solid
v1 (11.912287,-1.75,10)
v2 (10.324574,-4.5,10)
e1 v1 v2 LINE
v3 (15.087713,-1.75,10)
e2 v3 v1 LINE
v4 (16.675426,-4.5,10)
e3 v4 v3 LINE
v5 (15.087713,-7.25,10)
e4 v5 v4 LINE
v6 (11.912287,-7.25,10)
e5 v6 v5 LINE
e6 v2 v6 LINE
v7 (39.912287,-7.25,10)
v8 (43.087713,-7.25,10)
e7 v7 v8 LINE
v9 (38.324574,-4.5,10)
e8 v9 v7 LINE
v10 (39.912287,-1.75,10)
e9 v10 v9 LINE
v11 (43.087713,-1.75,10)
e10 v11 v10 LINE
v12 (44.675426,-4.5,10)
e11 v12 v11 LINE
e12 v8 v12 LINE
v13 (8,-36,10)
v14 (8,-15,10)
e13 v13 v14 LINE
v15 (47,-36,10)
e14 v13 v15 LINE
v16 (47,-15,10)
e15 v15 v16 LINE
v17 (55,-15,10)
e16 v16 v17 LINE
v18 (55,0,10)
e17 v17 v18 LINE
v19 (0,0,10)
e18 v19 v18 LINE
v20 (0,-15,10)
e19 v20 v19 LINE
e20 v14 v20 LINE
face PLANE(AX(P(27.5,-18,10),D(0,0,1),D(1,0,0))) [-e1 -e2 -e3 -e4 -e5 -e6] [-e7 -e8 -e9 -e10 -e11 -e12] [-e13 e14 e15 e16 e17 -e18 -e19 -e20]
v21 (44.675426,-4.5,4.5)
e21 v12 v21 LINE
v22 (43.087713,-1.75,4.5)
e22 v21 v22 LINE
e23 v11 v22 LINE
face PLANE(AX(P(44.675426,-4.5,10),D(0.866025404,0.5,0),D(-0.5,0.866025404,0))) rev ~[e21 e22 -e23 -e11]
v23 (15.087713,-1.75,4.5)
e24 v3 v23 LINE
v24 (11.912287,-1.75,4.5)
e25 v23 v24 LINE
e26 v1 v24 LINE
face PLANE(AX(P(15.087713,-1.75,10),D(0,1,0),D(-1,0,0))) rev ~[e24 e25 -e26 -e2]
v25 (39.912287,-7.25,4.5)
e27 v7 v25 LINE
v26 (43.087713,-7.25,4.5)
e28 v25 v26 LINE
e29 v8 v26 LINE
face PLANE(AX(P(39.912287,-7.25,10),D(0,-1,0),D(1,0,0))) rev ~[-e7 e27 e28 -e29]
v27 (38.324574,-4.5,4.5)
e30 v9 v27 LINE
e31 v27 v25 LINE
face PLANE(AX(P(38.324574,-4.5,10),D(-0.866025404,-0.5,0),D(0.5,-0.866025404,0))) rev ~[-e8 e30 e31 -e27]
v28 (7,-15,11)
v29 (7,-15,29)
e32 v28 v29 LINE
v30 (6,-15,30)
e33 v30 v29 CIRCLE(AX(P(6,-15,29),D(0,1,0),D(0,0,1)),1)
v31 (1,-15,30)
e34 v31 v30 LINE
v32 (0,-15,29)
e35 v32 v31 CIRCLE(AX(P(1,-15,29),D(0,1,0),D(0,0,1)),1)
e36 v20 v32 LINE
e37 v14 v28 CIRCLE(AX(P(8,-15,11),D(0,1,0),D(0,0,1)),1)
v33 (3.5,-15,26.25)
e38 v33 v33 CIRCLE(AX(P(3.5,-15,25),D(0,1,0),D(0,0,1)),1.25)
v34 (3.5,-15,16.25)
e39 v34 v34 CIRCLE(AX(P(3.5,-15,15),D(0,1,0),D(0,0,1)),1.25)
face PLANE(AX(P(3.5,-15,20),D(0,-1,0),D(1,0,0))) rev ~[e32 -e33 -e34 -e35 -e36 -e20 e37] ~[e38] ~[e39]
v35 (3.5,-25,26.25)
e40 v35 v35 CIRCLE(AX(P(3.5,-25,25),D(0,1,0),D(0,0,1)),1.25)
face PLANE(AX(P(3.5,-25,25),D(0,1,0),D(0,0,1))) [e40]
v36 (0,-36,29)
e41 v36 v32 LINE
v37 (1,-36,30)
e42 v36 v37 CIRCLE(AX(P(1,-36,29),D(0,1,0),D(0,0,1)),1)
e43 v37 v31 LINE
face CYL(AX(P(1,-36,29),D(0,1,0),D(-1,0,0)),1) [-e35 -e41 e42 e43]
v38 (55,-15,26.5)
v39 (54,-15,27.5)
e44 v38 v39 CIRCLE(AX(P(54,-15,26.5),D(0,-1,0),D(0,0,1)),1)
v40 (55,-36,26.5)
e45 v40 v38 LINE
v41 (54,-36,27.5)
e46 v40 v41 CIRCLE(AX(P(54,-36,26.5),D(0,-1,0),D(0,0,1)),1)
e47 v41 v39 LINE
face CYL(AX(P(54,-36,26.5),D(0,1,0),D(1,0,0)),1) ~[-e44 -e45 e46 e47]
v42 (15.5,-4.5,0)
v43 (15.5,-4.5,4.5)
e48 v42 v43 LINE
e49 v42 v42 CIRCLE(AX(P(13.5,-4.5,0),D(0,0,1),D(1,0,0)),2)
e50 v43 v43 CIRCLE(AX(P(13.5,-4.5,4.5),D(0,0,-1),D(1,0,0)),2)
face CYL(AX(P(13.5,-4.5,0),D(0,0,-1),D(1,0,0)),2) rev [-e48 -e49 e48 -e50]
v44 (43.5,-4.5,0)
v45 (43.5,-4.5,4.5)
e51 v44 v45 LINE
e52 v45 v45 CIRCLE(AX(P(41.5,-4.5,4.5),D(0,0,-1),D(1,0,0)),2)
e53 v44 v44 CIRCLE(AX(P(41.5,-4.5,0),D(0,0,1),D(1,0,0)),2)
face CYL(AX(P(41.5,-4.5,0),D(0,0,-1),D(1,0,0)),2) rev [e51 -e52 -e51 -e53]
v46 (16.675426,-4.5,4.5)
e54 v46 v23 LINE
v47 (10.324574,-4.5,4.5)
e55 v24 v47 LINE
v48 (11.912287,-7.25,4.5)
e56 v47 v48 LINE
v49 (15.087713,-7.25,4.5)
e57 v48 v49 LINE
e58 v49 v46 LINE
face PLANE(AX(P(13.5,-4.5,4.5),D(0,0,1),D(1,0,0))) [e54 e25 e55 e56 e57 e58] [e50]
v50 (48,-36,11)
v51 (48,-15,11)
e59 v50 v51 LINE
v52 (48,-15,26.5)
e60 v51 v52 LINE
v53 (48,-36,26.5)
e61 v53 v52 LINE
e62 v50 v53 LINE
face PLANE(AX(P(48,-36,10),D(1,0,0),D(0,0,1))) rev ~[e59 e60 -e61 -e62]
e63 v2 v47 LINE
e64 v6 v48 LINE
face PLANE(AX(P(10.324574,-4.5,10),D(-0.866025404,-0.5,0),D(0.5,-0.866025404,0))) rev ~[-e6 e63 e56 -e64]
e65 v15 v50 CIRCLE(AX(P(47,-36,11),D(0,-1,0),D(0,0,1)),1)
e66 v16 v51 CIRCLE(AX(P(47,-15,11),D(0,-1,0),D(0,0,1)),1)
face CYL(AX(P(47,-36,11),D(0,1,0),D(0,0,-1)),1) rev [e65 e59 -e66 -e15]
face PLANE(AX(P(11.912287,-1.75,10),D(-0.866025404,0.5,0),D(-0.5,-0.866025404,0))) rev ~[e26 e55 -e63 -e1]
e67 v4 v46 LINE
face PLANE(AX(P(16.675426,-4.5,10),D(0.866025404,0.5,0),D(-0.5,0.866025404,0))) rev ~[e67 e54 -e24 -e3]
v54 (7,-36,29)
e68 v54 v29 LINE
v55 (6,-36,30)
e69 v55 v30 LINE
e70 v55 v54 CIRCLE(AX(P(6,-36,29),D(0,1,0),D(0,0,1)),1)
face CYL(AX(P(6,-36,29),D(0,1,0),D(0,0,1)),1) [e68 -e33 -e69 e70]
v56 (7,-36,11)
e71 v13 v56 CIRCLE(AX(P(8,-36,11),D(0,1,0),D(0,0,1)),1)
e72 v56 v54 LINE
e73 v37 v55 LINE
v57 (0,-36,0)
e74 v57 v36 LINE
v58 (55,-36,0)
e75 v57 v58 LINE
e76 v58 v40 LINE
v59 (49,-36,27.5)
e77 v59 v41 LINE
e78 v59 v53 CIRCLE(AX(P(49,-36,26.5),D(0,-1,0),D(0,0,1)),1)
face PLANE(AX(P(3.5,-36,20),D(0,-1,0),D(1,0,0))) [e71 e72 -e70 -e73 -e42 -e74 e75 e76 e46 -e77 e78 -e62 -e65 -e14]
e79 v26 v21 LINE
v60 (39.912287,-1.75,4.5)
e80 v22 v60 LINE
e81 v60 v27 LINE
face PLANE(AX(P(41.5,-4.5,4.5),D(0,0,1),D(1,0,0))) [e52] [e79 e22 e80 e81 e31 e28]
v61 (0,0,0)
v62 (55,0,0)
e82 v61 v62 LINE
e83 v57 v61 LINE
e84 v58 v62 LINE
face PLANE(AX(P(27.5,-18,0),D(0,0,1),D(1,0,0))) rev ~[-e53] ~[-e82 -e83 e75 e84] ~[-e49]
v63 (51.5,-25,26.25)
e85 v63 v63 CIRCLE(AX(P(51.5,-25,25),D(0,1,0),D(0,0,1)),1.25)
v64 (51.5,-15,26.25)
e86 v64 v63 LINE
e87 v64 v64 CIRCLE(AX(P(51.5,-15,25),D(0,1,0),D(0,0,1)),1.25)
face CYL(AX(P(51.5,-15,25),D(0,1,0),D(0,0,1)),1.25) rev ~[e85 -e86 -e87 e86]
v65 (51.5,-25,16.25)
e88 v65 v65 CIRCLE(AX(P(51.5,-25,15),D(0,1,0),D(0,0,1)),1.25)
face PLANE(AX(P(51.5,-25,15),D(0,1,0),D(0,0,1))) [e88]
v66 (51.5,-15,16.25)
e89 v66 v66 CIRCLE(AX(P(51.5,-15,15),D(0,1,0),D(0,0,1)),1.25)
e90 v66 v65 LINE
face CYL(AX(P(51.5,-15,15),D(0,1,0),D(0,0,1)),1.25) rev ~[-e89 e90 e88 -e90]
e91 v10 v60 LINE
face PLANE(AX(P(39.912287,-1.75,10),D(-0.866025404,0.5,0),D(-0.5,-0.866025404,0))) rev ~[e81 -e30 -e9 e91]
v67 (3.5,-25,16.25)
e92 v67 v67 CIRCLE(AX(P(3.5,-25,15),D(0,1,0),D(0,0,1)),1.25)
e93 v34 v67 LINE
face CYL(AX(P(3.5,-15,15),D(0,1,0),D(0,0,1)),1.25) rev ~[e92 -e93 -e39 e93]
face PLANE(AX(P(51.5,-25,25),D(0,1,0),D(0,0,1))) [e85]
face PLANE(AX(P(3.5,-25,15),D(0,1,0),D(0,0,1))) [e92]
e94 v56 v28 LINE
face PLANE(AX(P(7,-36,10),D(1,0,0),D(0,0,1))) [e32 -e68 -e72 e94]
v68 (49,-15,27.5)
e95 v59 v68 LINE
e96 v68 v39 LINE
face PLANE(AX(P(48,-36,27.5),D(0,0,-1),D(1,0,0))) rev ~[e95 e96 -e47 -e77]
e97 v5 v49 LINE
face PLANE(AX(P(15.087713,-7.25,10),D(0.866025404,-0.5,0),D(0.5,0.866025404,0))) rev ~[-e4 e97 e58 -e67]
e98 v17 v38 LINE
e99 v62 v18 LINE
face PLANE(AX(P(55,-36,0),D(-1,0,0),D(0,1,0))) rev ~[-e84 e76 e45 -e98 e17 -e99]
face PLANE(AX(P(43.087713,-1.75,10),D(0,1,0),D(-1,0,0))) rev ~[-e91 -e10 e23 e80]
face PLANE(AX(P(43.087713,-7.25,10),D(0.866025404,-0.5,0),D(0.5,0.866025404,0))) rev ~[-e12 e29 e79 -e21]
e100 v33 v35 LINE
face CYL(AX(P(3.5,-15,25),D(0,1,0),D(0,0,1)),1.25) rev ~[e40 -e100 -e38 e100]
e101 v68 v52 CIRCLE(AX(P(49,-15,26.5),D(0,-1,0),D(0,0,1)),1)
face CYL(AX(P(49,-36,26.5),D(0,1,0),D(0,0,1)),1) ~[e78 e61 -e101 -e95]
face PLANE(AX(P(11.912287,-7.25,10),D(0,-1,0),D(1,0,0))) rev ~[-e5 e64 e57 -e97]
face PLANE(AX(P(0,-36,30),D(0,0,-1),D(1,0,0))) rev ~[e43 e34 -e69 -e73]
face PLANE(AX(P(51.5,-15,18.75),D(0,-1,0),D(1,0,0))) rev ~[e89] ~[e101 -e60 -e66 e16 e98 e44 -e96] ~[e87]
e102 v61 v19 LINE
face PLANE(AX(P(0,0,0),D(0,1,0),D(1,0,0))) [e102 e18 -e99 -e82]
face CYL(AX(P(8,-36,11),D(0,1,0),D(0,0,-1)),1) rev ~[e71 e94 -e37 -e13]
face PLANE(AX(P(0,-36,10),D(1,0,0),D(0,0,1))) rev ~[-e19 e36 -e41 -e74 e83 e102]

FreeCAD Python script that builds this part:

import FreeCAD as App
import Part
import Sketcher

V = App.Vector
Q = App.Units.Quantity


def edges_at(feature, points):
    """Names of the edges that pass closest to the given points."""
    edges = feature.Shape.Edges
    near = lambda p: min(range(len(edges)), key=lambda i: edges[i].distToShape(Part.Vertex(*p))[0])
    return sorted({f"Edge{near(p) + 1}" for p in points})


def add_polygon(sketch, points):
    """Adds a closed chain of lines whose ends are joined by coincident constraints."""
    first, n = sketch.GeometryCount, len(points)
    for a, b in zip(points, points[1:] + points[:1]):
        sketch.addGeometry(Part.LineSegment(App.Vector(*a, 0), App.Vector(*b, 0)), False)
    for i in range(n):
        sketch.addConstraint(Sketcher.Constraint("Coincident", first + i, 2, first + (i + 1) % n, 1))

doc = App.newDocument("Part")
body = doc.addObject("PartDesign::Body", "Body")

# Sketch on XY plane
sketch1 = body.newObject("Sketcher::SketchObject", "Sketch")
sketch1.AttachmentSupport = (doc.getObject("XY_Plane"), [""])
sketch1.MapMode = "FlatFace"
add_polygon(sketch1, [(0, 0), (0, -36), (55, -36), (55, 0)])  # lines 0-3
sketch1.addGeometry(Part.Circle(V(13.5, -4.5, 0), V(0, 0, 1), 2), False)  # 4
sketch1.addGeometry(Part.Circle(V(41.5, -4.5, 0), V(0, 0, 1), 2), False)  # 5
sketch1.addConstraint([
    Sketcher.Constraint("Vertical", 0),
    Sketcher.Constraint("Horizontal", 1),
    Sketcher.Constraint("Vertical", 2),
    Sketcher.Constraint("Horizontal", 3),
    Sketcher.Constraint("Coincident", 3, 2, -1, 1),
    Sketcher.Constraint("Equal", 4, 5),
    Sketcher.Constraint("Horizontal", 4, 3, 5, 3),
    Sketcher.Constraint("Diameter", 4, Q("4 mm")),
    Sketcher.Constraint("DistanceX", 1, 1, 1, 2, Q("55 mm")),
    Sketcher.Constraint("DistanceY", 0, 2, 0, 1, Q("36 mm")),
    Sketcher.Constraint("DistanceX", 4, 3, 5, 3, Q("28 mm")),
    Sketcher.Constraint("DistanceX", -1, 1, 4, 3, Q("13.5 mm")),
    Sketcher.Constraint("DistanceY", 4, 3, -1, 1, Q("4.5 mm")),
])
pad1 = body.newObject("PartDesign::Pad", "Pad")
pad1.Profile = sketch1
pad1.Length = 10

# Sketch on XZ plane
sketch2 = body.newObject("Sketcher::SketchObject", "Sketch001")
sketch2.AttachmentSupport = (doc.getObject("XZ_Plane"), [""])
sketch2.MapMode = "FlatFace"
sketch2.AttachmentOffset = App.Placement(V(0, 0, 36), App.Rotation())
add_polygon(sketch2, [(0, 30), (0, 10), (7, 10), (7, 30)])  # lines 0-3
add_polygon(sketch2, [(48, 28), (48, 10), (55, 10), (55, 28)])  # lines 4-7
sketch2.addConstraint([
    Sketcher.Constraint("Vertical", 0),
    Sketcher.Constraint("Horizontal", 1),
    Sketcher.Constraint("Vertical", 2),
    Sketcher.Constraint("Horizontal", 3),
    Sketcher.Constraint("Vertical", 4),
    Sketcher.Constraint("Horizontal", 5),
    Sketcher.Constraint("Vertical", 6),
    Sketcher.Constraint("Horizontal", 7),
    Sketcher.Constraint("PointOnObject", 0, 2, -2),
    Sketcher.Constraint("Horizontal", 1, 2, 4, 2),
    Sketcher.Constraint("Equal", 3, 5),
    Sketcher.Constraint("DistanceX", 1, 1, 1, 2, Q("7 mm")),
    Sketcher.Constraint("DistanceY", 0, 2, 0, 1, Q("20 mm")),
    Sketcher.Constraint("DistanceY", 4, 2, 4, 1, Q("17.5 mm")),
    Sketcher.Constraint("DistanceY", -1, 1, 0, 2, Q("10 mm")),
    Sketcher.Constraint("DistanceX", -1, 1, 4, 2, Q("48 mm")),
])
pad2 = body.newObject("PartDesign::Pad", "Pad001")
pad2.Profile = sketch2
pad2.Length = 21
pad2.Reversed = True

# Sketch on XZ plane
sketch3 = body.newObject("Sketcher::SketchObject", "Sketch002")
sketch3.AttachmentSupport = (doc.getObject("XZ_Plane"), [""])
sketch3.MapMode = "FlatFace"
sketch3.AttachmentOffset = App.Placement(V(0, 0, 15), App.Rotation())
sketch3.addGeometry([
    Part.Circle(V(3.5, 15, 0), V(0, 0, 1), 1.2),
    Part.Circle(V(51.5, 15, 0), V(0, 0, 1), 1.2),
    Part.Circle(V(51.5, 25, 0), V(0, 0, 1), 1.2),
    Part.Circle(V(3.5, 25, 0), V(0, 0, 1), 1.2),
], False)
sketch3.addConstraint([
    Sketcher.Constraint("Equal", 0, 1),
    Sketcher.Constraint("Equal", 1, 2),
    Sketcher.Constraint("Equal", 2, 3),
    Sketcher.Constraint("Horizontal", 0, 3, 1, 3),
    Sketcher.Constraint("Horizontal", 2, 3, 3, 3),
    Sketcher.Constraint("Vertical", 1, 3, 2, 3),
    Sketcher.Constraint("Vertical", 0, 3, 3, 3),
    Sketcher.Constraint("Diameter", 0, Q("2.5 mm")),
    Sketcher.Constraint("DistanceY", -1, 1, 0, 3, Q("15 mm")),
    Sketcher.Constraint("DistanceY", -1, 1, 2, 3, Q("25 mm")),
    Sketcher.Constraint("DistanceX", 0, 3, 1, 3, Q("48 mm")),
    Sketcher.Constraint("DistanceX", -1, 1, 0, 3, Q("3.5 mm")),
])
pocket1 = body.newObject("PartDesign::Pocket", "Pocket")
pocket1.Profile = sketch3
pocket1.Length = 10
pocket1.Reversed = True

# Sketch on XY plane
sketch4 = body.newObject("Sketcher::SketchObject", "Sketch003")
sketch4.AttachmentSupport = (doc.getObject("XY_Plane"), [""])
sketch4.MapMode = "FlatFace"
sketch4.AttachmentOffset = App.Placement(V(0, 0, 10), App.Rotation())
add_polygon(sketch4, [(11.9, -1.8), (10.3, -4.5), (11.9, -7.2), (15.1, -7.2), (16.7, -4.5), (15.1, -1.8)])  # lines 0-5
sketch4.addConstraint([
    Sketcher.Constraint("Horizontal", 2),
    Sketcher.Constraint("Horizontal", 5),
    Sketcher.Constraint("Parallel", 0, 3),
    Sketcher.Constraint("Parallel", 1, 4),
    Sketcher.Constraint("Horizontal", 0, 2, 3, 2),
    Sketcher.Constraint("Vertical", 2, 2, 4, 2),
    Sketcher.Constraint("Vertical", 1, 2, 5, 2),
    Sketcher.Constraint("Angle", 0, Q("-120 deg")),
    Sketcher.Constraint("DistanceY", 0, 2, -1, 1, Q("4.5 mm")),
    Sketcher.Constraint("DistanceY", 2, 2, 4, 2, Q("5.5 mm")),
    Sketcher.Constraint("DistanceX", 2, 1, 2, 2, Q("3.175426 mm")),
    Sketcher.Constraint("DistanceX", -1, 1, 0, 2, Q("10.324574 mm")),
])
pocket2 = body.newObject("PartDesign::Pocket", "Pocket001")
pocket2.Profile = sketch4
pocket2.Length = 5.5
doc.recompute()

linearpattern = body.newObject("PartDesign::LinearPattern", "LinearPattern")
linearpattern.Originals = [pocket2]
linearpattern.Direction = (doc.getObject("X_Axis"), [""])
linearpattern.Mode = "offset"
linearpattern.Offset = 28
linearpattern.Occurrences = 2
body.Tip = linearpattern
doc.recompute()

fillet = body.newObject("PartDesign::Fillet", "Fillet")
fillet.Base = (linearpattern, edges_at(linearpattern, [
    (0, -25.5, 30),
    (7, -25.5, 30),
    (7, -25.5, 10),
    (55, -25.5, 27.5),
    (48, -25.5, 10),
    (48, -25.5, 27.5),
]))
fillet.Radius = 1

doc.recompute()
